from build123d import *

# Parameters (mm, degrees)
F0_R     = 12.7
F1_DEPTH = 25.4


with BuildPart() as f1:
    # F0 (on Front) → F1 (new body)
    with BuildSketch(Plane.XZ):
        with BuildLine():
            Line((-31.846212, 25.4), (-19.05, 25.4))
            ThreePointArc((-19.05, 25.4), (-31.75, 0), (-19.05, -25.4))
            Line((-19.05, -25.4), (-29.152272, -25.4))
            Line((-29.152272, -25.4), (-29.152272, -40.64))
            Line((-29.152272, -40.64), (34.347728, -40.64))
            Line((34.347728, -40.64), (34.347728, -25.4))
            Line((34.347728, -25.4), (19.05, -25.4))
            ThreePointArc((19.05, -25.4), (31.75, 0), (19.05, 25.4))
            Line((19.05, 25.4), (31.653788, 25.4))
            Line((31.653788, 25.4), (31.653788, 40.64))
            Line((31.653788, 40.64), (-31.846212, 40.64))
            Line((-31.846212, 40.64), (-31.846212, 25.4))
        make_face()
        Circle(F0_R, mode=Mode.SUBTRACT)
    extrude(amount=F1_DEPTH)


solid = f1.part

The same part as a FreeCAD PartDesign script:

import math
import FreeCAD as App
import Part
import Sketcher

V = App.Vector
Q = App.Units.Quantity

doc = App.newDocument("Part")
params = doc.addObject("Spreadsheet::Sheet", "Params")
for row, (alias, value) in enumerate([
    ("sketch1_diameter", "1 in"),
    ("sketch1_radius", "1.25 in"),
    ("sketch1_width", "2.5 in"),
    ("sketch1_height", "0.6 in"),
    ("pad1_length", "1 in"),
], start=1):
    params.set(f"A{row}", alias)
    params.set(f"B{row}", "=" + value)
    params.setAlias(f"B{row}", alias)

body = doc.addObject("PartDesign::Body", "Body")

# Sketch on XZ plane
sketch1 = body.newObject("Sketcher::SketchObject", "Sketch")
sketch1.AttachmentSupport = (doc.getObject("XZ_Plane"), [""])
sketch1.MapMode = "FlatFace"
sketch1.addGeometry(Part.LineSegment(V(-32, 25, 0), V(-19, 25, 0)), False)
sketch1.addGeometry(Part.ArcOfCircle(Part.Circle(V(0, 0, 0), V(0, 0, 1), 32), math.radians(127), math.radians(233)), False)
sketch1.addGeometry(Part.LineSegment(V(-19, -25, 0), V(-29, -25, 0)), False)
sketch1.addGeometry(Part.LineSegment(V(-29, -25, 0), V(-29, -41, 0)), False)
sketch1.addGeometry(Part.LineSegment(V(-29, -41, 0), V(34, -41, 0)), False)
sketch1.addGeometry(Part.LineSegment(V(34, -41, 0), V(34, -25, 0)), False)
sketch1.addGeometry(Part.LineSegment(V(34, -25, 0), V(19, -25, 0)), False)
sketch1.addGeometry(Part.ArcOfCircle(Part.Circle(V(0, 0, 0), V(0, 0, 1), 32), math.radians(-53), math.radians(53)), False)
sketch1.addGeometry(Part.LineSegment(V(19, 25, 0), V(32, 25, 0)), False)
sketch1.addGeometry(Part.LineSegment(V(32, 25, 0), V(32, 41, 0)), False)
sketch1.addGeometry(Part.LineSegment(V(32, 41, 0), V(-32, 41, 0)), False)
sketch1.addGeometry(Part.LineSegment(V(-32, 41, 0), V(-32, 25, 0)), False)
sketch1.addGeometry(Part.Circle(V(0, 0, 0), V(0, 0, 1), 13), False)
sketch1.addConstraint(Sketcher.Constraint("Coincident", 0, 2, 1, 1))
sketch1.addConstraint(Sketcher.Constraint("Coincident", 1, 2, 2, 1))
sketch1.addConstraint(Sketcher.Constraint("Coincident", 2, 2, 3, 1))
sketch1.addConstraint(Sketcher.Constraint("Coincident", 3, 2, 4, 1))
sketch1.addConstraint(Sketcher.Constraint("Coincident", 4, 2, 5, 1))
sketch1.addConstraint(Sketcher.Constraint("Coincident", 5, 2, 6, 1))
sketch1.addConstraint(Sketcher.Constraint("Coincident", 6, 2, 7, 1))
sketch1.addConstraint(Sketcher.Constraint("Coincident", 7, 2, 8, 1))
sketch1.addConstraint(Sketcher.Constraint("Coincident", 8, 2, 9, 1))
sketch1.addConstraint(Sketcher.Constraint("Coincident", 9, 2, 10, 1))
sketch1.addConstraint(Sketcher.Constraint("Coincident", 10, 2, 11, 1))
sketch1.addConstraint(Sketcher.Constraint("Coincident", 11, 2, 0, 1))
sketch1.addConstraint(Sketcher.Constraint("Horizontal", 0))
sketch1.addConstraint(Sketcher.Constraint("Horizontal", 2))
sketch1.addConstraint(Sketcher.Constraint("Vertical", 3))
sketch1.addConstraint(Sketcher.Constraint("Horizontal", 4))
sketch1.addConstraint(Sketcher.Constraint("Vertical", 5))
sketch1.addConstraint(Sketcher.Constraint("Horizontal", 6))
sketch1.addConstraint(Sketcher.Constraint("Horizontal", 8))
sketch1.addConstraint(Sketcher.Constraint("Vertical", 9))
sketch1.addConstraint(Sketcher.Constraint("Horizontal", 10))
sketch1.addConstraint(Sketcher.Constraint("Vertical", 11))
sketch1.addConstraint(Sketcher.Constraint("Coincident", 1, 3, -1, 1))
sketch1.addConstraint(Sketcher.Constraint("Coincident", 7, 3, -1, 1))
sketch1.addConstraint(Sketcher.Constraint("Coincident", 12, 3, -1, 1))
sketch1.addConstraint(Sketcher.Constraint("Equal", 1, 7))
sketch1.addConstraint(Sketcher.Constraint("Horizontal", 2, 2, 5, 2))
sketch1.addConstraint(Sketcher.Constraint("Horizontal", 0, 2, 7, 2))
sketch1.addConstraint(Sketcher.Constraint("Vertical", 0, 2, 1, 2))
sketch1.addConstraint(Sketcher.Constraint("Equal", 4, 10))
sketch1.addConstraint(Sketcher.Constraint("Equal", 5, 9))
sketch1.addConstraint(Sketcher.Constraint("Diameter", 12, Q("1 in")))
sketch1.addConstraint(Sketcher.Constraint("Radius", 1, Q("1.25 in")))
sketch1.addConstraint(Sketcher.Constraint("DistanceX", 4, 1, 4, 2, Q("2.5 in")))
sketch1.addConstraint(Sketcher.Constraint("DistanceY", 3, 2, 3, 1, Q("0.6 in")))
sketch1.addConstraint(Sketcher.Constraint("DistanceY", -1, 1, 0, 2, Q("1 in")))
sketch1.addConstraint(Sketcher.Constraint("DistanceX", 2, 2, 2, 1, 10.102272))
sketch1.addConstraint(Sketcher.Constraint("DistanceX", 0, 1, 0, 2, 12.796212))
sketch1.setExpression("Constraints[31]", "Params.sketch1_diameter")
sketch1.setExpression("Constraints[32]", "Params.sketch1_radius")
sketch1.setExpression("Constraints[33]", "Params.sketch1_width")
sketch1.setExpression("Constraints[34]", "Params.sketch1_height")
pad1 = body.newObject("PartDesign::Pad", "Pad")
pad1.Profile = sketch1
pad1.setExpression("Length", "Params.pad1_length")

doc.recompute()
